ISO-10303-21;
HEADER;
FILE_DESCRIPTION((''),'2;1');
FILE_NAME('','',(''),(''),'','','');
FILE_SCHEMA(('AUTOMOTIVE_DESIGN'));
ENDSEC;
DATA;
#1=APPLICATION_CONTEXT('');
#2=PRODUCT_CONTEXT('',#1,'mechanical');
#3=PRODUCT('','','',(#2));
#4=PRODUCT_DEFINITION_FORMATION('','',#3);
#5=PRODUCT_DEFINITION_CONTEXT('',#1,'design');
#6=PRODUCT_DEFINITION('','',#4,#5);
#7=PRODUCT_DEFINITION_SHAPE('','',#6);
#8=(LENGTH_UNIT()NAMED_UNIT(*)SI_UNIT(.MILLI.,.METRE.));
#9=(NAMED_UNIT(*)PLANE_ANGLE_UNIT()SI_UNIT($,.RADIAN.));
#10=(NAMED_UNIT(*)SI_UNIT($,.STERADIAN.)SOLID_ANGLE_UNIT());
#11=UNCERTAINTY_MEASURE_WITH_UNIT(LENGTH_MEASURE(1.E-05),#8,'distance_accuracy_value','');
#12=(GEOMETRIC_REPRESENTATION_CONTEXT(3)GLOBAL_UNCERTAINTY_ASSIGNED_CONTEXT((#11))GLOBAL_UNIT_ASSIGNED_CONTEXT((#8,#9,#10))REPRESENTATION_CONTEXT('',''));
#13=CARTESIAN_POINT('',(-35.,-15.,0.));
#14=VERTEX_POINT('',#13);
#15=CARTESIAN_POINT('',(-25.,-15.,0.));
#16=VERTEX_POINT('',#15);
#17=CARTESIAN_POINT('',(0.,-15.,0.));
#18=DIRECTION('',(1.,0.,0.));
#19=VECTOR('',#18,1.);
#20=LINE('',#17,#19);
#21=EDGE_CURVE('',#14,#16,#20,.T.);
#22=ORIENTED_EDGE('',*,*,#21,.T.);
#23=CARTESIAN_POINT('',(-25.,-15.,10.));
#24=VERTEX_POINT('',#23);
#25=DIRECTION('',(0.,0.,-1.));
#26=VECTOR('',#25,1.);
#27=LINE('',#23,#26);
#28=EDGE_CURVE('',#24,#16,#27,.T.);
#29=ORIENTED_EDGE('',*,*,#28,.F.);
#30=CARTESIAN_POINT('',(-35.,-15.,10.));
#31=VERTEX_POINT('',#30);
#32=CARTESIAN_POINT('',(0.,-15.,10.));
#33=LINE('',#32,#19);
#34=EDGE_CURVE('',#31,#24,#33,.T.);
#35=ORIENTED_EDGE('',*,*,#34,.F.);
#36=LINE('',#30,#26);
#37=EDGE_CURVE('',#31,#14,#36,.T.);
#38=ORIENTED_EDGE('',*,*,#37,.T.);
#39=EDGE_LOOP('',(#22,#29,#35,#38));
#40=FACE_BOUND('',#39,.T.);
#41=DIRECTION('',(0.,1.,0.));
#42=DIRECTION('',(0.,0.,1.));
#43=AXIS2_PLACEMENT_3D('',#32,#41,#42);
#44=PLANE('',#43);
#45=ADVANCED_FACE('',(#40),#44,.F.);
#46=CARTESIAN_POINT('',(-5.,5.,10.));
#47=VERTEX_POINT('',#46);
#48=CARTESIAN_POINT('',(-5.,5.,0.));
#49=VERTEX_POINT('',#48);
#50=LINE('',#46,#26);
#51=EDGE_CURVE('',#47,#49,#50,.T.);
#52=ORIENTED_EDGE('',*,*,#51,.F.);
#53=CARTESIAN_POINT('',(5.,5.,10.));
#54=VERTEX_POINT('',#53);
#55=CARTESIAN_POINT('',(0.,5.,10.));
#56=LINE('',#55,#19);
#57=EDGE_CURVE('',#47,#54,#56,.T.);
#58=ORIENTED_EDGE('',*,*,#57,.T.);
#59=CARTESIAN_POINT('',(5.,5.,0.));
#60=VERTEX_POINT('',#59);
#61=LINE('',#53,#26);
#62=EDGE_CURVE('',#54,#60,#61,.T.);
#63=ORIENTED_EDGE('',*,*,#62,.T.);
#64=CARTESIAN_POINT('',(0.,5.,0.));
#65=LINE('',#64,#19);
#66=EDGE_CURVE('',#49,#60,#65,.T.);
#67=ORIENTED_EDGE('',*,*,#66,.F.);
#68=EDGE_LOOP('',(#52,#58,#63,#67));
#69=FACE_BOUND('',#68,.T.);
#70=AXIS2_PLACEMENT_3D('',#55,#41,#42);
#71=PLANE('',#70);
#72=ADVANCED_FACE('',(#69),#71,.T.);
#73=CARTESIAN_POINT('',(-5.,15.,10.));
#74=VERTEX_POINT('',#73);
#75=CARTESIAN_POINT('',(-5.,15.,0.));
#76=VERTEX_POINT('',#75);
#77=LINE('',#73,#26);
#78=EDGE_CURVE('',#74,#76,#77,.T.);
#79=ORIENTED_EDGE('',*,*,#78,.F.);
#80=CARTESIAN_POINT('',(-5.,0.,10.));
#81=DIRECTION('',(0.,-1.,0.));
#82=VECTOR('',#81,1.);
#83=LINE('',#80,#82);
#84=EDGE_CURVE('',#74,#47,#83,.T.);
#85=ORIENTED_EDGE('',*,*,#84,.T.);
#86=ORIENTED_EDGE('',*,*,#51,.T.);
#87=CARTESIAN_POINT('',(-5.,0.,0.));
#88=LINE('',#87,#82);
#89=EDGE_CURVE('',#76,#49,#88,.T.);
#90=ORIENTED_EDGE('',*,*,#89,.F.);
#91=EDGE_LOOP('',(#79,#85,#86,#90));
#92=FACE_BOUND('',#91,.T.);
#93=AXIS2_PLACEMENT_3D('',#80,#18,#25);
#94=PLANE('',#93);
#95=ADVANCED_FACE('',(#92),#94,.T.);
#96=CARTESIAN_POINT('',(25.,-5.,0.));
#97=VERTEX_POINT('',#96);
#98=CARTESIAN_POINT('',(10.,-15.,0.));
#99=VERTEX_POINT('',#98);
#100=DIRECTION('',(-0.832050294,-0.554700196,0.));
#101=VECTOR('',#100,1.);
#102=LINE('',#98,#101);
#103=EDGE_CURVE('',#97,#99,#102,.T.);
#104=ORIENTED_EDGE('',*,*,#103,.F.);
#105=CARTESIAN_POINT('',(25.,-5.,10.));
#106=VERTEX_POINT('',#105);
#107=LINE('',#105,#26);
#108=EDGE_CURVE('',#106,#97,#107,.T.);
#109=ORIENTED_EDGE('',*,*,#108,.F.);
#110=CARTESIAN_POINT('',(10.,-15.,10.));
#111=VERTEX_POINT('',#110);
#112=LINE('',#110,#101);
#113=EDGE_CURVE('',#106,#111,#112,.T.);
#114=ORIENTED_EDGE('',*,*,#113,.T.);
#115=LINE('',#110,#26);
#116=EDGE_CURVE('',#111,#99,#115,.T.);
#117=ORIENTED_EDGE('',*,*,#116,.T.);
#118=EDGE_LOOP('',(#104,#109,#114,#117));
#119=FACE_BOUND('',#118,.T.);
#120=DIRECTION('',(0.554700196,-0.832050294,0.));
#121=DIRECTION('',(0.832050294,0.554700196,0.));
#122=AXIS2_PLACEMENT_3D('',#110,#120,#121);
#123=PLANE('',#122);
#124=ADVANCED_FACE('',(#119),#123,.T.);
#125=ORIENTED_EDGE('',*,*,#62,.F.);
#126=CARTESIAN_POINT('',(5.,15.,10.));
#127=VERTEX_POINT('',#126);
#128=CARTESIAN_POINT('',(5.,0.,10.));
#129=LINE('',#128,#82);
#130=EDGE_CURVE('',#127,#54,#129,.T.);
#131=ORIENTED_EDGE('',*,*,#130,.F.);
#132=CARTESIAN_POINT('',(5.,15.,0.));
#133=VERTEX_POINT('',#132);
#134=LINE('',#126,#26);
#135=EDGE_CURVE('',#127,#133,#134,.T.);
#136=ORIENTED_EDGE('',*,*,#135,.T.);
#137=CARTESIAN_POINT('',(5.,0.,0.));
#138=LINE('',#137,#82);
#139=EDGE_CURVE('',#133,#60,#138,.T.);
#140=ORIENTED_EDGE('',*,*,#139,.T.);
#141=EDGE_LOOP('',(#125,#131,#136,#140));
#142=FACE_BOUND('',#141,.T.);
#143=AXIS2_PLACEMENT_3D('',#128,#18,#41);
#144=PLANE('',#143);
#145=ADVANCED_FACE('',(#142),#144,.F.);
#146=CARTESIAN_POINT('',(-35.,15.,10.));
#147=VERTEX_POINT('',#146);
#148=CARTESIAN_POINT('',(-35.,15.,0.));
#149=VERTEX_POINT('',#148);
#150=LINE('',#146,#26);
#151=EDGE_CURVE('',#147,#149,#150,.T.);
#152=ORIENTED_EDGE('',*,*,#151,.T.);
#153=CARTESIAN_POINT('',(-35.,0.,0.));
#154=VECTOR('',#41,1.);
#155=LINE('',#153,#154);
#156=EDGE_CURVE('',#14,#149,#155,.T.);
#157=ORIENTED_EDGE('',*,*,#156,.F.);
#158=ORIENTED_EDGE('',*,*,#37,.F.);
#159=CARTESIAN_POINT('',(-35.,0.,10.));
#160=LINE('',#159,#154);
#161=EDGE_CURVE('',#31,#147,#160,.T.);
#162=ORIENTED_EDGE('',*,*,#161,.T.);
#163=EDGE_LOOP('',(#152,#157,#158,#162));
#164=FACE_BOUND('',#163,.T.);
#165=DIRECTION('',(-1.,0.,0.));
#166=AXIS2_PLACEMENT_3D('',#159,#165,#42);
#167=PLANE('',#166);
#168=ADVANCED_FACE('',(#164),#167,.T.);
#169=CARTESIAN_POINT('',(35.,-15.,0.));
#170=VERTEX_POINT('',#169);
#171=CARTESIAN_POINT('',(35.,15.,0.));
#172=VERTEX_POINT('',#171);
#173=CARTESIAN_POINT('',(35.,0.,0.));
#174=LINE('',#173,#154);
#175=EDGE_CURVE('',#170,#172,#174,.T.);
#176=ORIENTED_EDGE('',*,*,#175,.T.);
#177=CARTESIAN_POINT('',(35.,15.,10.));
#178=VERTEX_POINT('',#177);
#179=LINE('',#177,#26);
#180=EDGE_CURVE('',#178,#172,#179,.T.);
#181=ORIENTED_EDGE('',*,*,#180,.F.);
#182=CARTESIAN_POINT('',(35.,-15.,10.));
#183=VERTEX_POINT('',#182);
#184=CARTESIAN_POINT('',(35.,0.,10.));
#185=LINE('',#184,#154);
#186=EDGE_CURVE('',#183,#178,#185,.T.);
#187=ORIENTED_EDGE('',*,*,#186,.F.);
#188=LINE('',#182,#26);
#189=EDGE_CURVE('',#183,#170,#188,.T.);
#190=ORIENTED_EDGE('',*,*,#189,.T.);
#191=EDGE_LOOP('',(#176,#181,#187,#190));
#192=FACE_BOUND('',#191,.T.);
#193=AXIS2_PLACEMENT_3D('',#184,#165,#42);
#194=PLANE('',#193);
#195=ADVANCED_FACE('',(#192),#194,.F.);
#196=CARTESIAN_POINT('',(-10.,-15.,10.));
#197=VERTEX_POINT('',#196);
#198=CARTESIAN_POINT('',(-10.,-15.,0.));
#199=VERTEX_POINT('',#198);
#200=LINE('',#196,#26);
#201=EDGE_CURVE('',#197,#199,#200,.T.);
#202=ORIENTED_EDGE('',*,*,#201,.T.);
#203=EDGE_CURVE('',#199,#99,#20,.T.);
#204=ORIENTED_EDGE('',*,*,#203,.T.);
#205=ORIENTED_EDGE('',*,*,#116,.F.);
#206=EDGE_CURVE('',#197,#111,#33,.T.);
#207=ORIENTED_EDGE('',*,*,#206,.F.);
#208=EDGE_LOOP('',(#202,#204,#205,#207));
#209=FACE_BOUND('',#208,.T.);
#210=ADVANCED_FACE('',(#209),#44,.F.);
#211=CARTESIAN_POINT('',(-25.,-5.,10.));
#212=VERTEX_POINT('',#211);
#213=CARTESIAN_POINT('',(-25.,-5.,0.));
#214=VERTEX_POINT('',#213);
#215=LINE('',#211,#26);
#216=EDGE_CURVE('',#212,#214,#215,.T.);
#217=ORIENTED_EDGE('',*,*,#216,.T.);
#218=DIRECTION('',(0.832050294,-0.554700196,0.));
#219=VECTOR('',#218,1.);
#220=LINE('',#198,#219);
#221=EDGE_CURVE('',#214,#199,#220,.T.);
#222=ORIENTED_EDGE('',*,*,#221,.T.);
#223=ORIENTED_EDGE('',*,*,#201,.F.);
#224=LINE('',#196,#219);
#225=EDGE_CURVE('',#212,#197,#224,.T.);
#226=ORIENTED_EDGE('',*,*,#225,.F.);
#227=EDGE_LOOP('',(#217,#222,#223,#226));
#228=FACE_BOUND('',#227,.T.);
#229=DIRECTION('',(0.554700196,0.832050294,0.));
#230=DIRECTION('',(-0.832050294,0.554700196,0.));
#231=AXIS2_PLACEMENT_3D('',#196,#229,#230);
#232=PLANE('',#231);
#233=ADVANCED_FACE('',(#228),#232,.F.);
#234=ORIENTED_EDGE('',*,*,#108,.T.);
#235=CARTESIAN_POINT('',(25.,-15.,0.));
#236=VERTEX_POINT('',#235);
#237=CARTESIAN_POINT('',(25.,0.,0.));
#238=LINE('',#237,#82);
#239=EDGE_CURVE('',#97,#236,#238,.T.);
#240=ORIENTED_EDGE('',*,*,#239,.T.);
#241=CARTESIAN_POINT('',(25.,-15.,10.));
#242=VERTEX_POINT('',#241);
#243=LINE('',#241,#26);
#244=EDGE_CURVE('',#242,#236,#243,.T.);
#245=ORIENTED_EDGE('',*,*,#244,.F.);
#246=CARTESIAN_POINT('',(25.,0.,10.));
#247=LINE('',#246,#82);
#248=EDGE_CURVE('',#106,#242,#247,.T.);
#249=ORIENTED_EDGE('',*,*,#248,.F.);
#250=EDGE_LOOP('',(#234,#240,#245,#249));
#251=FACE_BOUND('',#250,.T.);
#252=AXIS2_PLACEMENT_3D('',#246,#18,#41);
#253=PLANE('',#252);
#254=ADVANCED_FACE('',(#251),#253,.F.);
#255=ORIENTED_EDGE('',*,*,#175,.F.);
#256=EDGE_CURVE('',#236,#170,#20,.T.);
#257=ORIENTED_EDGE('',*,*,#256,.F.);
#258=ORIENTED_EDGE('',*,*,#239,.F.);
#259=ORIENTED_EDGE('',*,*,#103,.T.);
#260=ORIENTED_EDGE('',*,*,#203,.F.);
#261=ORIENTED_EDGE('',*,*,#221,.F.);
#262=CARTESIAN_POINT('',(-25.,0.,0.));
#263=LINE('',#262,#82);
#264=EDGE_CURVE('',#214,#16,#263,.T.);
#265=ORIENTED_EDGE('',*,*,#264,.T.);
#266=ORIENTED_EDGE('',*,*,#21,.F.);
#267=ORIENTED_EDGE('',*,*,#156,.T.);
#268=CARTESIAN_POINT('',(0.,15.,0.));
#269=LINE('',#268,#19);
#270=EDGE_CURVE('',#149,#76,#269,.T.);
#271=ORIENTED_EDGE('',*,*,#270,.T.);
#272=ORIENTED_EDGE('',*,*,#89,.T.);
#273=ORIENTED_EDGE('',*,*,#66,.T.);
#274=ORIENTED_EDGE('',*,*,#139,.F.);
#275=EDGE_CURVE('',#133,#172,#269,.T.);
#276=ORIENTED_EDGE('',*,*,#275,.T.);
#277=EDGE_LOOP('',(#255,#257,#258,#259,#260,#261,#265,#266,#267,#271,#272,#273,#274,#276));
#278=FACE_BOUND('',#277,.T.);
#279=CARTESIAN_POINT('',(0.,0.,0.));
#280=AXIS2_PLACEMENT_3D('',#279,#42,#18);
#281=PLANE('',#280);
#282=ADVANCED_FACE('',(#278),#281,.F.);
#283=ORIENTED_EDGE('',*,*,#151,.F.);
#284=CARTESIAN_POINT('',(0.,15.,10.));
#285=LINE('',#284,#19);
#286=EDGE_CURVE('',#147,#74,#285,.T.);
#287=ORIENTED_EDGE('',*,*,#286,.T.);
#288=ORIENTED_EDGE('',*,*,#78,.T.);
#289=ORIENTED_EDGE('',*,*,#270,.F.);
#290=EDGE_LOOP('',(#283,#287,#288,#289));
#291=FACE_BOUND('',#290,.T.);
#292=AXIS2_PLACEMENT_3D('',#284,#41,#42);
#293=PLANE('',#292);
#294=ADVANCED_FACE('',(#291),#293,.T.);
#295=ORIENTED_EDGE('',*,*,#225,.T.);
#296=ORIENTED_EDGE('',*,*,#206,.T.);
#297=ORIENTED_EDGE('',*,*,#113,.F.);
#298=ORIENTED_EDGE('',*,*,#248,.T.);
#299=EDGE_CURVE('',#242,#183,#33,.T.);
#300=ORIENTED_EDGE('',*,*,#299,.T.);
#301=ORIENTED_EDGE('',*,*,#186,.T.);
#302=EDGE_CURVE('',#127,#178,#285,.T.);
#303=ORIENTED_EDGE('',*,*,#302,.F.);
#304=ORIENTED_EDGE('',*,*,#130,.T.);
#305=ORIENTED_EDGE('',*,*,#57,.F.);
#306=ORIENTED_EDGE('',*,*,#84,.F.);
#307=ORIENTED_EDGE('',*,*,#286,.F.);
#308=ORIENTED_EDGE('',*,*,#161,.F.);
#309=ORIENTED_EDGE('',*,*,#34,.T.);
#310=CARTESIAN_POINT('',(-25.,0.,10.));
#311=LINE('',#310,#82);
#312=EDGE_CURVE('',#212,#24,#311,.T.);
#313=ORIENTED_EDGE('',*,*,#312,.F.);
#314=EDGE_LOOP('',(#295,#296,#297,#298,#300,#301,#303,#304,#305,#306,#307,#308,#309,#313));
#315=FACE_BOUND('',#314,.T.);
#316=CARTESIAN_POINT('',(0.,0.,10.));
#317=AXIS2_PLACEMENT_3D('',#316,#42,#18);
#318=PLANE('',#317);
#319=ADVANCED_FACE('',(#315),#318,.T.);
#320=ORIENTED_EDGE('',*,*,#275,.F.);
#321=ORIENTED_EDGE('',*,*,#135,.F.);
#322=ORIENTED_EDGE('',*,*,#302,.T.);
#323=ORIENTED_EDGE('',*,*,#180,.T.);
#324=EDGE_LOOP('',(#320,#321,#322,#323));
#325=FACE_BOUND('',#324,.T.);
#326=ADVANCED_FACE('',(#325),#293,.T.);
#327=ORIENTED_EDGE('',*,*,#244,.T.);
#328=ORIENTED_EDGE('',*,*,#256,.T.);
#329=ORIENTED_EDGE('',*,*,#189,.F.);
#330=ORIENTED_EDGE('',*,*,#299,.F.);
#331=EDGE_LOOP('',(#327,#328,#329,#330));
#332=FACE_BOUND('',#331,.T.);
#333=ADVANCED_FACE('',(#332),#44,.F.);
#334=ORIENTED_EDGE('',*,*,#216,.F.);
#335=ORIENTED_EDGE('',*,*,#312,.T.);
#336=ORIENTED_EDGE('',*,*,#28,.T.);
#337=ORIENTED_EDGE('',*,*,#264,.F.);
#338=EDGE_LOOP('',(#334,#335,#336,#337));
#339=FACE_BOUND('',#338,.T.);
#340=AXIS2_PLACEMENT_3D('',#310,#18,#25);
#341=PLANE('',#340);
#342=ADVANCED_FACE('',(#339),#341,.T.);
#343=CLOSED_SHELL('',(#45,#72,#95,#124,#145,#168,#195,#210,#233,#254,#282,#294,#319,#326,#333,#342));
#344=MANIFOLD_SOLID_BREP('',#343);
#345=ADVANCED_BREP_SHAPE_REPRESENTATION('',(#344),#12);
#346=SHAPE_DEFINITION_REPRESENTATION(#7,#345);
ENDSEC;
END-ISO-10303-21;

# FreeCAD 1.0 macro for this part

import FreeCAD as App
import Part
import Sketcher

doc = App.newDocument("Part")
params = doc.addObject("Spreadsheet::Sheet", "Params")
for row, (alias, value) in enumerate([
    ("sketch1_width", "10 mm"),
    ("sketch1_width2", "20 mm"),
    ("sketch1_width3", "30 mm"),
    ("pad1_length", "10 mm"),
], start=1):
    params.set(f"A{row}", alias)
    params.set(f"B{row}", "=" + value)
    params.setAlias(f"B{row}", alias)

body = doc.addObject("PartDesign::Body", "Body")

# Sketch on XY plane
sketch1 = doc.addObject("Sketcher::SketchObject", "Sketch")
body.addObject(sketch1)
sketch1.AttachmentSupport = (doc.XY_Plane, [""])
sketch1.MapMode = "FlatFace"
sketch1.addGeometry([
    Part.LineSegment(App.Vector(-35, -15, 0), App.Vector(-25, -15, 0)),  # 0
    Part.LineSegment(App.Vector(-25, -15, 0), App.Vector(-25, -5, 0)),  # 1
    Part.LineSegment(App.Vector(-25, -5, 0), App.Vector(-10, -15, 0)),  # 2
    Part.LineSegment(App.Vector(-10, -15, 0), App.Vector(10, -15, 0)),  # 3
    Part.LineSegment(App.Vector(10, -15, 0), App.Vector(25, -5, 0)),  # 4
    Part.LineSegment(App.Vector(25, -5, 0), App.Vector(25, -15, 0)),  # 5
    Part.LineSegment(App.Vector(25, -15, 0), App.Vector(35, -15, 0)),  # 6
    Part.LineSegment(App.Vector(35, -15, 0), App.Vector(35, 15, 0)),  # 7
    Part.LineSegment(App.Vector(35, 15, 0), App.Vector(5, 15, 0)),  # 8
    Part.LineSegment(App.Vector(5, 15, 0), App.Vector(5, 5, 0)),  # 9
    Part.LineSegment(App.Vector(5, 5, 0), App.Vector(-5, 5, 0)),  # 10
    Part.LineSegment(App.Vector(-5, 5, 0), App.Vector(-5, 15, 0)),  # 11
    Part.LineSegment(App.Vector(-5, 15, 0), App.Vector(-35, 15, 0)),  # 12
    Part.LineSegment(App.Vector(-35, 15, 0), App.Vector(-35, -15, 0)),  # 13
], False)
sketch1.addConstraint([
    Sketcher.Constraint("Coincident", 0, 2, 1, 1),
    Sketcher.Constraint("Coincident", 1, 2, 2, 1),
    Sketcher.Constraint("Coincident", 2, 2, 3, 1),
    Sketcher.Constraint("Coincident", 3, 2, 4, 1),
    Sketcher.Constraint("Coincident", 4, 2, 5, 1),
    Sketcher.Constraint("Coincident", 5, 2, 6, 1),
    Sketcher.Constraint("Coincident", 6, 2, 7, 1),
    Sketcher.Constraint("Coincident", 7, 2, 8, 1),
    Sketcher.Constraint("Coincident", 8, 2, 9, 1),
    Sketcher.Constraint("Coincident", 9, 2, 10, 1),
    Sketcher.Constraint("Coincident", 10, 2, 11, 1),
    Sketcher.Constraint("Coincident", 11, 2, 12, 1),
    Sketcher.Constraint("Coincident", 12, 2, 13, 1),
    Sketcher.Constraint("Coincident", 13, 2, 0, 1),
    Sketcher.Constraint("Horizontal", 0),
    Sketcher.Constraint("Vertical", 1),
    Sketcher.Constraint("Horizontal", 3),
    Sketcher.Constraint("Vertical", 5),
    Sketcher.Constraint("Horizontal", 6),
    Sketcher.Constraint("Vertical", 7),
    Sketcher.Constraint("Horizontal", 8),
    Sketcher.Constraint("Vertical", 9),
    Sketcher.Constraint("Horizontal", 10),
    Sketcher.Constraint("Vertical", 11),
    Sketcher.Constraint("Horizontal", 12),
    Sketcher.Constraint("Vertical", 13),
    Sketcher.Constraint("Symmetric", 6, 2, 12, 2, -1, 1),
    Sketcher.Constraint("Symmetric", 1, 2, 4, 2, -2),
    Sketcher.Constraint("Symmetric", 8, 2, 11, 2, -2),
    Sketcher.Constraint("Horizontal", 0, 2, 2, 2),
    Sketcher.Constraint("Horizontal", 3, 2, 5, 2),
    Sketcher.Constraint("Equal", 6, 10),
    Sketcher.Constraint("Equal", 10, 1),
    Sketcher.Constraint("Equal", 12, 7),
    Sketcher.Constraint("Equal", 5, 9),
    Sketcher.Constraint("Equal", 2, 4),
    Sketcher.Constraint("DistanceX", 0, 1, 0, 2, 10.0),
    Sketcher.Constraint("DistanceX", 3, 1, 3, 2, 20.0),
    Sketcher.Constraint("DistanceX", 8, 2, 8, 1, 30.0),
])
sketch1.setExpression("Constraints[36]", "Params.sketch1_width")
sketch1.setExpression("Constraints[37]", "Params.sketch1_width2")
sketch1.setExpression("Constraints[38]", "Params.sketch1_width3")
pad1 = doc.addObject("PartDesign::Pad", "Pad")
body.addObject(pad1)
pad1.Profile = sketch1
pad1.setExpression("Length", "Params.pad1_length")

doc.recompute()
